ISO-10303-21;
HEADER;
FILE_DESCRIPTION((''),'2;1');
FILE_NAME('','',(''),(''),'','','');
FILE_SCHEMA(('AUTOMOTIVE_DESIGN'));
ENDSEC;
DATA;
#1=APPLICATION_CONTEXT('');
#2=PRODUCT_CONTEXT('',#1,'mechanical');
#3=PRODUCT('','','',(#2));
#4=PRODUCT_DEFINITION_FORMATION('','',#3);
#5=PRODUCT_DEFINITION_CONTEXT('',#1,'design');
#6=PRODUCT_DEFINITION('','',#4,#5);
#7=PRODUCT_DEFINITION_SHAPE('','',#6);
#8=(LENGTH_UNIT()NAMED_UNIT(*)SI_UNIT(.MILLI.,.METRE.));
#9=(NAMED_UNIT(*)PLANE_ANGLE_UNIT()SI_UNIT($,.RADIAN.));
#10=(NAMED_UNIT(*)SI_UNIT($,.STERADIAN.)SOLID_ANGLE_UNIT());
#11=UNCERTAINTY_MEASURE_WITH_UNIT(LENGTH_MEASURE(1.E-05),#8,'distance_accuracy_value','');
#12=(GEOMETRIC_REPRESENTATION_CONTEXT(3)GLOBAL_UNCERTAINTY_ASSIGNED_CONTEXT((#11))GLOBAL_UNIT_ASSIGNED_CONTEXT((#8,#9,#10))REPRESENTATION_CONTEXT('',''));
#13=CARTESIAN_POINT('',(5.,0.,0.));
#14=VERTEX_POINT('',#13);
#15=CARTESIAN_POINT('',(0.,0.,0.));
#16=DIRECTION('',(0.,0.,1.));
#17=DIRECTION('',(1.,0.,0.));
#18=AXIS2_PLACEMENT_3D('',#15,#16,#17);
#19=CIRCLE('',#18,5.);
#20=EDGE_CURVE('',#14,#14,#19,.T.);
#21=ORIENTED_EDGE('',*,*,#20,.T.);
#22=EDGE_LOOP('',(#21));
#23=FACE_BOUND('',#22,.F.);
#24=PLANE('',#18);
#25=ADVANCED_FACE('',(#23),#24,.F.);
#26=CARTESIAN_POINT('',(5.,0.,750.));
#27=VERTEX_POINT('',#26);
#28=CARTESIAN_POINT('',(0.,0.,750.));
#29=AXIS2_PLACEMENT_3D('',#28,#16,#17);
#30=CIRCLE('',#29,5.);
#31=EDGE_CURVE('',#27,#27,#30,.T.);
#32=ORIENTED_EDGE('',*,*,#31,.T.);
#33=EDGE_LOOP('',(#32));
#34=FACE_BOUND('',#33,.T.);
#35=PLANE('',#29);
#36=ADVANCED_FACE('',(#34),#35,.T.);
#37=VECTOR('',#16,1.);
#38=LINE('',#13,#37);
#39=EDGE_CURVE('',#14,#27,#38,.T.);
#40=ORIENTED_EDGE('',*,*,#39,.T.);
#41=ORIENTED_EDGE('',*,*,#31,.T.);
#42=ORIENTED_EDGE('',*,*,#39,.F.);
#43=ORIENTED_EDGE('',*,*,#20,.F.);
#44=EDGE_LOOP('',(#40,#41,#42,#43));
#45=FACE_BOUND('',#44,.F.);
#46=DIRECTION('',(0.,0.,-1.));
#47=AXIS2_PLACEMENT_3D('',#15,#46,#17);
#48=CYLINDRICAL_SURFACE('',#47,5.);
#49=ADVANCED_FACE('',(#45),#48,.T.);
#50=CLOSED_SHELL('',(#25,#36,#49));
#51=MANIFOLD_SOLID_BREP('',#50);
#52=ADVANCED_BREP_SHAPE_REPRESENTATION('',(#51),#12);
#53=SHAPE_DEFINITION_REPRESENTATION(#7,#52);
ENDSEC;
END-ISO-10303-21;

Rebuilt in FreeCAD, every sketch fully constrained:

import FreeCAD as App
import Part
import Sketcher
from FreeCAD import Vector

doc = App.newDocument("Part")
body = doc.addObject("PartDesign::Body", "Body")

# Sketch on XY plane
sketch1 = doc.addObject("Sketcher::SketchObject", "Sketch")
body.addObject(sketch1)
sketch1.AttachmentSupport = (doc.XY_Plane, [""])
sketch1.MapMode = "FlatFace"
sketch1.addGeometry(Part.Circle(Vector(0, 0, 0), Vector(0, 0, 1), 5), False)
sketch1.addConstraint(Sketcher.Constraint("Coincident", 0, 3, -1, 1))
sketch1.addConstraint(Sketcher.Constraint("Diameter", 0, 10.0))
pad1 = doc.addObject("PartDesign::Pad", "Pad")
body.addObject(pad1)
pad1.Profile = sketch1
pad1.Length = 750

doc.recompute()
